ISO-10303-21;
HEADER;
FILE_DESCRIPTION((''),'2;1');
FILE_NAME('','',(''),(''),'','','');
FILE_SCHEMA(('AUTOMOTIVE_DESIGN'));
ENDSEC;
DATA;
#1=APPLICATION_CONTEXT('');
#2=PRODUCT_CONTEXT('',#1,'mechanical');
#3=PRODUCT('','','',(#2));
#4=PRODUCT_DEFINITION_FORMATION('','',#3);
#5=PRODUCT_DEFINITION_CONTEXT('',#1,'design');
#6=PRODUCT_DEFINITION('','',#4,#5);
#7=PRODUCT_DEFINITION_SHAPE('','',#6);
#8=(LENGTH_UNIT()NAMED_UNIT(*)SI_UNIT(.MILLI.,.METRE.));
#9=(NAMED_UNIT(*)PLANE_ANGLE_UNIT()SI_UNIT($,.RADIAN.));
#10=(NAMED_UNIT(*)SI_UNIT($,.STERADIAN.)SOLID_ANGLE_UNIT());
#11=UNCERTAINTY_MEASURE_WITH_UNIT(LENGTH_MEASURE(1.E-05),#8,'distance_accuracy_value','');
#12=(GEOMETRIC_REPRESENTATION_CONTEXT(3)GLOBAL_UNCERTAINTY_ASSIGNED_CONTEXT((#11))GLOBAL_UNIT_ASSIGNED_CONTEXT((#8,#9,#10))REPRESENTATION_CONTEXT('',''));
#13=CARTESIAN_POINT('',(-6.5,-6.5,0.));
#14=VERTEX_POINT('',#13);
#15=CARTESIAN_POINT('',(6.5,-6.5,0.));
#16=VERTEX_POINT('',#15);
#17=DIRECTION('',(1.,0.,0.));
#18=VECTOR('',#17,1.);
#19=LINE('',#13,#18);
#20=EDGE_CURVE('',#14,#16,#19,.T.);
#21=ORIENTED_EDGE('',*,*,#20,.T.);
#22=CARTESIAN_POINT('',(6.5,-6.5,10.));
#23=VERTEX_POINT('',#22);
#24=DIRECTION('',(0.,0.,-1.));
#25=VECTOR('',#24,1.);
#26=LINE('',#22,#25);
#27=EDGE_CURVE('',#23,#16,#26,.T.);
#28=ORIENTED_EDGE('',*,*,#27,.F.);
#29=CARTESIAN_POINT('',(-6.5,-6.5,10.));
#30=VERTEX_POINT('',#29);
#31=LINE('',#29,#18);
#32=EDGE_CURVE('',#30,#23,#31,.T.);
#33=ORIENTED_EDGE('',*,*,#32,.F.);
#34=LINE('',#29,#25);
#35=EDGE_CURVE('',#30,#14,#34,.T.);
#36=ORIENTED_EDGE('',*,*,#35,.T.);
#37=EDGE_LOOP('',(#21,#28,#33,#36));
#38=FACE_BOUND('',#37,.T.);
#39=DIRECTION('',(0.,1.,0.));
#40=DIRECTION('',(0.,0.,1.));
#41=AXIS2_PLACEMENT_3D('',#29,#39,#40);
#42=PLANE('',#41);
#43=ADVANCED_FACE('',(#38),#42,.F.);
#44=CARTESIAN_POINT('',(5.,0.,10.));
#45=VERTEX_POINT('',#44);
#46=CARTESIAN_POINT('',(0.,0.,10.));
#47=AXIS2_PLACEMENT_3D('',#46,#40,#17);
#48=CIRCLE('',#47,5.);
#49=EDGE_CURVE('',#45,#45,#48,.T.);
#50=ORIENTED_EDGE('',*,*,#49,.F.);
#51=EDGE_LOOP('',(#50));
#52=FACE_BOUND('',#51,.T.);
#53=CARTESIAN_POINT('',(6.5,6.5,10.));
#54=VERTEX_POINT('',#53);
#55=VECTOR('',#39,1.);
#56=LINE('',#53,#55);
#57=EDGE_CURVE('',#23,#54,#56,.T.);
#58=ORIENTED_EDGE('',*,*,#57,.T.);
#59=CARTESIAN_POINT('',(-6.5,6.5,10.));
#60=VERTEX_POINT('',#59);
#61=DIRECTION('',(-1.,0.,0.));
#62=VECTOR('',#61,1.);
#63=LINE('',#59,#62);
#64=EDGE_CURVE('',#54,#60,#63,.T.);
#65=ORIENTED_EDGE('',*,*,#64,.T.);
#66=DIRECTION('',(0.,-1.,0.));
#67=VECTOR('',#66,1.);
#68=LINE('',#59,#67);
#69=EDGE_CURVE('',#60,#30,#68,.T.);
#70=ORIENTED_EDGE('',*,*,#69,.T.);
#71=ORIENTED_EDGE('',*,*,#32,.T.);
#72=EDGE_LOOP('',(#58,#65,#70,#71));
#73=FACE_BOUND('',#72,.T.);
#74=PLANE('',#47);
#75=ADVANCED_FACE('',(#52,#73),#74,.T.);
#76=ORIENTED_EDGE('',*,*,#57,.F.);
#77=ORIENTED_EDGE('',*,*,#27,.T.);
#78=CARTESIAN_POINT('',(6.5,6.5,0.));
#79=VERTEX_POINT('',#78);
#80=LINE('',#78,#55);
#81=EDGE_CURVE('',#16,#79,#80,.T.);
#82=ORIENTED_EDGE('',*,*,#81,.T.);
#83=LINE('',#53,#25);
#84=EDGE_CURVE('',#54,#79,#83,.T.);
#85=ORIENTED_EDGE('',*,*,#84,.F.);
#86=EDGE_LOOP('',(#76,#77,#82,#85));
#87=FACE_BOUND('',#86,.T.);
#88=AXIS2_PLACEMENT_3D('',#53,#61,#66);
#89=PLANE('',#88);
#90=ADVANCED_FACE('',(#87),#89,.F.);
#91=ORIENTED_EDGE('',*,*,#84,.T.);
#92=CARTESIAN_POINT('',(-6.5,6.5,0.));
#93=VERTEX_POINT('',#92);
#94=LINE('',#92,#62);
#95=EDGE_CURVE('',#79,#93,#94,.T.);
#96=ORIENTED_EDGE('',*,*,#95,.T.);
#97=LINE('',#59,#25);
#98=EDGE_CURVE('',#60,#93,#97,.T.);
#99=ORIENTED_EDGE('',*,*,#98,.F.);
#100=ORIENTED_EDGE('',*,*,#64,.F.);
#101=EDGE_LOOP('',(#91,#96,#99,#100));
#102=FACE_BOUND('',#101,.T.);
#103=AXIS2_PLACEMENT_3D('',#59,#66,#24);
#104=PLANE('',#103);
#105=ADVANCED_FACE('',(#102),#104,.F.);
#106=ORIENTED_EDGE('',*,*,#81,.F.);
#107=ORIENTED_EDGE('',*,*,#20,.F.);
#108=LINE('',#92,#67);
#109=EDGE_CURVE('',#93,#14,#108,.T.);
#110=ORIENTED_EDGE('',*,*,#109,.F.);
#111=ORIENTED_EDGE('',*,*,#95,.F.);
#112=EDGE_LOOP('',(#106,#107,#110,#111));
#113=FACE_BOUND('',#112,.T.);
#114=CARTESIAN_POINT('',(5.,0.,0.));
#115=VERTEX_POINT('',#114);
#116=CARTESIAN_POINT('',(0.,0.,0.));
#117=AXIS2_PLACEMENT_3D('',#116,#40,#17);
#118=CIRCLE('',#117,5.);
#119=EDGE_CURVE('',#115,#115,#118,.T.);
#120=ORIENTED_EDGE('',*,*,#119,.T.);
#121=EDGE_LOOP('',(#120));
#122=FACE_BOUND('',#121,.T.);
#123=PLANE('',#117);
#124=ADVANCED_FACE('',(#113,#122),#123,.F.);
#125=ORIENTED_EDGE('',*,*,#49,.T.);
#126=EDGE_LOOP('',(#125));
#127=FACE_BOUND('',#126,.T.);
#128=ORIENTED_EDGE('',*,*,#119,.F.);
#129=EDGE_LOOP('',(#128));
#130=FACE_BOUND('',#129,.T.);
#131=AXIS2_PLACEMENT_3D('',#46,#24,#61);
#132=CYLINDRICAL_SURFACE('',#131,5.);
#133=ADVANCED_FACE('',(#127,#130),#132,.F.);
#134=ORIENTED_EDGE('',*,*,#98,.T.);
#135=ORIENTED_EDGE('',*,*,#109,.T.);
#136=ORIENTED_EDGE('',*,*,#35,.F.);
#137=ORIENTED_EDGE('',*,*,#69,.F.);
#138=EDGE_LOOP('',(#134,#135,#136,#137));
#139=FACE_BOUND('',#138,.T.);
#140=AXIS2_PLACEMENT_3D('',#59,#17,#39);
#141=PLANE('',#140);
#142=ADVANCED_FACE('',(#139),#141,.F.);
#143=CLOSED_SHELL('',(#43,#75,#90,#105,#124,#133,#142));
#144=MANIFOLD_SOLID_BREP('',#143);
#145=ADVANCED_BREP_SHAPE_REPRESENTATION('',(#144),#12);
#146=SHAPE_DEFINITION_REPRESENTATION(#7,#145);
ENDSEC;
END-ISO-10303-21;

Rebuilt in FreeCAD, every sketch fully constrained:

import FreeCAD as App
import Part
import Sketcher
from FreeCAD import Vector

doc = App.newDocument("Part")
body = doc.addObject("PartDesign::Body", "Body")

sketch1 = body.newObject("Sketcher::SketchObject", "Sketch")
sketch1.AttachmentSupport = (doc.getObject("XY_Plane"), [""])
sketch1.MapMode = "FlatFace"
sketch1.addGeometry([
    Part.LineSegment(Vector(-6, 6, 0), Vector(-6, -6, 0)),
    Part.LineSegment(Vector(-6, -6, 0), Vector(6, -6, 0)),
    Part.LineSegment(Vector(6, -6, 0), Vector(6, 6, 0)),
    Part.LineSegment(Vector(6, 6, 0), Vector(-6, 6, 0)),
    Part.Circle(Vector(0, 0, 0), Vector(0, 0, 1), 5),
], False)
sketch1.addConstraint([
    Sketcher.Constraint("Coincident", 0, 2, 1, 1),
    Sketcher.Constraint("Coincident", 1, 2, 2, 1),
    Sketcher.Constraint("Coincident", 2, 2, 3, 1),
    Sketcher.Constraint("Coincident", 3, 2, 0, 1),
    Sketcher.Constraint("Vertical", 0),
    Sketcher.Constraint("Horizontal", 1),
    Sketcher.Constraint("Vertical", 2),
    Sketcher.Constraint("Horizontal", 3),
    Sketcher.Constraint("Coincident", 4, 3, -1, 1),
    Sketcher.Constraint("Symmetric", 0, 2, 2, 2, -1, 1),
    Sketcher.Constraint("Equal", 3, 0),
    Sketcher.Constraint("Diameter", 4, 10.0),
    Sketcher.Constraint("DistanceX", 1, 1, 1, 2, 13.0),
])
pad1 = body.newObject("PartDesign::Pad", "Pad")
pad1.Profile = sketch1
pad1.Length = 10

doc.recompute()
